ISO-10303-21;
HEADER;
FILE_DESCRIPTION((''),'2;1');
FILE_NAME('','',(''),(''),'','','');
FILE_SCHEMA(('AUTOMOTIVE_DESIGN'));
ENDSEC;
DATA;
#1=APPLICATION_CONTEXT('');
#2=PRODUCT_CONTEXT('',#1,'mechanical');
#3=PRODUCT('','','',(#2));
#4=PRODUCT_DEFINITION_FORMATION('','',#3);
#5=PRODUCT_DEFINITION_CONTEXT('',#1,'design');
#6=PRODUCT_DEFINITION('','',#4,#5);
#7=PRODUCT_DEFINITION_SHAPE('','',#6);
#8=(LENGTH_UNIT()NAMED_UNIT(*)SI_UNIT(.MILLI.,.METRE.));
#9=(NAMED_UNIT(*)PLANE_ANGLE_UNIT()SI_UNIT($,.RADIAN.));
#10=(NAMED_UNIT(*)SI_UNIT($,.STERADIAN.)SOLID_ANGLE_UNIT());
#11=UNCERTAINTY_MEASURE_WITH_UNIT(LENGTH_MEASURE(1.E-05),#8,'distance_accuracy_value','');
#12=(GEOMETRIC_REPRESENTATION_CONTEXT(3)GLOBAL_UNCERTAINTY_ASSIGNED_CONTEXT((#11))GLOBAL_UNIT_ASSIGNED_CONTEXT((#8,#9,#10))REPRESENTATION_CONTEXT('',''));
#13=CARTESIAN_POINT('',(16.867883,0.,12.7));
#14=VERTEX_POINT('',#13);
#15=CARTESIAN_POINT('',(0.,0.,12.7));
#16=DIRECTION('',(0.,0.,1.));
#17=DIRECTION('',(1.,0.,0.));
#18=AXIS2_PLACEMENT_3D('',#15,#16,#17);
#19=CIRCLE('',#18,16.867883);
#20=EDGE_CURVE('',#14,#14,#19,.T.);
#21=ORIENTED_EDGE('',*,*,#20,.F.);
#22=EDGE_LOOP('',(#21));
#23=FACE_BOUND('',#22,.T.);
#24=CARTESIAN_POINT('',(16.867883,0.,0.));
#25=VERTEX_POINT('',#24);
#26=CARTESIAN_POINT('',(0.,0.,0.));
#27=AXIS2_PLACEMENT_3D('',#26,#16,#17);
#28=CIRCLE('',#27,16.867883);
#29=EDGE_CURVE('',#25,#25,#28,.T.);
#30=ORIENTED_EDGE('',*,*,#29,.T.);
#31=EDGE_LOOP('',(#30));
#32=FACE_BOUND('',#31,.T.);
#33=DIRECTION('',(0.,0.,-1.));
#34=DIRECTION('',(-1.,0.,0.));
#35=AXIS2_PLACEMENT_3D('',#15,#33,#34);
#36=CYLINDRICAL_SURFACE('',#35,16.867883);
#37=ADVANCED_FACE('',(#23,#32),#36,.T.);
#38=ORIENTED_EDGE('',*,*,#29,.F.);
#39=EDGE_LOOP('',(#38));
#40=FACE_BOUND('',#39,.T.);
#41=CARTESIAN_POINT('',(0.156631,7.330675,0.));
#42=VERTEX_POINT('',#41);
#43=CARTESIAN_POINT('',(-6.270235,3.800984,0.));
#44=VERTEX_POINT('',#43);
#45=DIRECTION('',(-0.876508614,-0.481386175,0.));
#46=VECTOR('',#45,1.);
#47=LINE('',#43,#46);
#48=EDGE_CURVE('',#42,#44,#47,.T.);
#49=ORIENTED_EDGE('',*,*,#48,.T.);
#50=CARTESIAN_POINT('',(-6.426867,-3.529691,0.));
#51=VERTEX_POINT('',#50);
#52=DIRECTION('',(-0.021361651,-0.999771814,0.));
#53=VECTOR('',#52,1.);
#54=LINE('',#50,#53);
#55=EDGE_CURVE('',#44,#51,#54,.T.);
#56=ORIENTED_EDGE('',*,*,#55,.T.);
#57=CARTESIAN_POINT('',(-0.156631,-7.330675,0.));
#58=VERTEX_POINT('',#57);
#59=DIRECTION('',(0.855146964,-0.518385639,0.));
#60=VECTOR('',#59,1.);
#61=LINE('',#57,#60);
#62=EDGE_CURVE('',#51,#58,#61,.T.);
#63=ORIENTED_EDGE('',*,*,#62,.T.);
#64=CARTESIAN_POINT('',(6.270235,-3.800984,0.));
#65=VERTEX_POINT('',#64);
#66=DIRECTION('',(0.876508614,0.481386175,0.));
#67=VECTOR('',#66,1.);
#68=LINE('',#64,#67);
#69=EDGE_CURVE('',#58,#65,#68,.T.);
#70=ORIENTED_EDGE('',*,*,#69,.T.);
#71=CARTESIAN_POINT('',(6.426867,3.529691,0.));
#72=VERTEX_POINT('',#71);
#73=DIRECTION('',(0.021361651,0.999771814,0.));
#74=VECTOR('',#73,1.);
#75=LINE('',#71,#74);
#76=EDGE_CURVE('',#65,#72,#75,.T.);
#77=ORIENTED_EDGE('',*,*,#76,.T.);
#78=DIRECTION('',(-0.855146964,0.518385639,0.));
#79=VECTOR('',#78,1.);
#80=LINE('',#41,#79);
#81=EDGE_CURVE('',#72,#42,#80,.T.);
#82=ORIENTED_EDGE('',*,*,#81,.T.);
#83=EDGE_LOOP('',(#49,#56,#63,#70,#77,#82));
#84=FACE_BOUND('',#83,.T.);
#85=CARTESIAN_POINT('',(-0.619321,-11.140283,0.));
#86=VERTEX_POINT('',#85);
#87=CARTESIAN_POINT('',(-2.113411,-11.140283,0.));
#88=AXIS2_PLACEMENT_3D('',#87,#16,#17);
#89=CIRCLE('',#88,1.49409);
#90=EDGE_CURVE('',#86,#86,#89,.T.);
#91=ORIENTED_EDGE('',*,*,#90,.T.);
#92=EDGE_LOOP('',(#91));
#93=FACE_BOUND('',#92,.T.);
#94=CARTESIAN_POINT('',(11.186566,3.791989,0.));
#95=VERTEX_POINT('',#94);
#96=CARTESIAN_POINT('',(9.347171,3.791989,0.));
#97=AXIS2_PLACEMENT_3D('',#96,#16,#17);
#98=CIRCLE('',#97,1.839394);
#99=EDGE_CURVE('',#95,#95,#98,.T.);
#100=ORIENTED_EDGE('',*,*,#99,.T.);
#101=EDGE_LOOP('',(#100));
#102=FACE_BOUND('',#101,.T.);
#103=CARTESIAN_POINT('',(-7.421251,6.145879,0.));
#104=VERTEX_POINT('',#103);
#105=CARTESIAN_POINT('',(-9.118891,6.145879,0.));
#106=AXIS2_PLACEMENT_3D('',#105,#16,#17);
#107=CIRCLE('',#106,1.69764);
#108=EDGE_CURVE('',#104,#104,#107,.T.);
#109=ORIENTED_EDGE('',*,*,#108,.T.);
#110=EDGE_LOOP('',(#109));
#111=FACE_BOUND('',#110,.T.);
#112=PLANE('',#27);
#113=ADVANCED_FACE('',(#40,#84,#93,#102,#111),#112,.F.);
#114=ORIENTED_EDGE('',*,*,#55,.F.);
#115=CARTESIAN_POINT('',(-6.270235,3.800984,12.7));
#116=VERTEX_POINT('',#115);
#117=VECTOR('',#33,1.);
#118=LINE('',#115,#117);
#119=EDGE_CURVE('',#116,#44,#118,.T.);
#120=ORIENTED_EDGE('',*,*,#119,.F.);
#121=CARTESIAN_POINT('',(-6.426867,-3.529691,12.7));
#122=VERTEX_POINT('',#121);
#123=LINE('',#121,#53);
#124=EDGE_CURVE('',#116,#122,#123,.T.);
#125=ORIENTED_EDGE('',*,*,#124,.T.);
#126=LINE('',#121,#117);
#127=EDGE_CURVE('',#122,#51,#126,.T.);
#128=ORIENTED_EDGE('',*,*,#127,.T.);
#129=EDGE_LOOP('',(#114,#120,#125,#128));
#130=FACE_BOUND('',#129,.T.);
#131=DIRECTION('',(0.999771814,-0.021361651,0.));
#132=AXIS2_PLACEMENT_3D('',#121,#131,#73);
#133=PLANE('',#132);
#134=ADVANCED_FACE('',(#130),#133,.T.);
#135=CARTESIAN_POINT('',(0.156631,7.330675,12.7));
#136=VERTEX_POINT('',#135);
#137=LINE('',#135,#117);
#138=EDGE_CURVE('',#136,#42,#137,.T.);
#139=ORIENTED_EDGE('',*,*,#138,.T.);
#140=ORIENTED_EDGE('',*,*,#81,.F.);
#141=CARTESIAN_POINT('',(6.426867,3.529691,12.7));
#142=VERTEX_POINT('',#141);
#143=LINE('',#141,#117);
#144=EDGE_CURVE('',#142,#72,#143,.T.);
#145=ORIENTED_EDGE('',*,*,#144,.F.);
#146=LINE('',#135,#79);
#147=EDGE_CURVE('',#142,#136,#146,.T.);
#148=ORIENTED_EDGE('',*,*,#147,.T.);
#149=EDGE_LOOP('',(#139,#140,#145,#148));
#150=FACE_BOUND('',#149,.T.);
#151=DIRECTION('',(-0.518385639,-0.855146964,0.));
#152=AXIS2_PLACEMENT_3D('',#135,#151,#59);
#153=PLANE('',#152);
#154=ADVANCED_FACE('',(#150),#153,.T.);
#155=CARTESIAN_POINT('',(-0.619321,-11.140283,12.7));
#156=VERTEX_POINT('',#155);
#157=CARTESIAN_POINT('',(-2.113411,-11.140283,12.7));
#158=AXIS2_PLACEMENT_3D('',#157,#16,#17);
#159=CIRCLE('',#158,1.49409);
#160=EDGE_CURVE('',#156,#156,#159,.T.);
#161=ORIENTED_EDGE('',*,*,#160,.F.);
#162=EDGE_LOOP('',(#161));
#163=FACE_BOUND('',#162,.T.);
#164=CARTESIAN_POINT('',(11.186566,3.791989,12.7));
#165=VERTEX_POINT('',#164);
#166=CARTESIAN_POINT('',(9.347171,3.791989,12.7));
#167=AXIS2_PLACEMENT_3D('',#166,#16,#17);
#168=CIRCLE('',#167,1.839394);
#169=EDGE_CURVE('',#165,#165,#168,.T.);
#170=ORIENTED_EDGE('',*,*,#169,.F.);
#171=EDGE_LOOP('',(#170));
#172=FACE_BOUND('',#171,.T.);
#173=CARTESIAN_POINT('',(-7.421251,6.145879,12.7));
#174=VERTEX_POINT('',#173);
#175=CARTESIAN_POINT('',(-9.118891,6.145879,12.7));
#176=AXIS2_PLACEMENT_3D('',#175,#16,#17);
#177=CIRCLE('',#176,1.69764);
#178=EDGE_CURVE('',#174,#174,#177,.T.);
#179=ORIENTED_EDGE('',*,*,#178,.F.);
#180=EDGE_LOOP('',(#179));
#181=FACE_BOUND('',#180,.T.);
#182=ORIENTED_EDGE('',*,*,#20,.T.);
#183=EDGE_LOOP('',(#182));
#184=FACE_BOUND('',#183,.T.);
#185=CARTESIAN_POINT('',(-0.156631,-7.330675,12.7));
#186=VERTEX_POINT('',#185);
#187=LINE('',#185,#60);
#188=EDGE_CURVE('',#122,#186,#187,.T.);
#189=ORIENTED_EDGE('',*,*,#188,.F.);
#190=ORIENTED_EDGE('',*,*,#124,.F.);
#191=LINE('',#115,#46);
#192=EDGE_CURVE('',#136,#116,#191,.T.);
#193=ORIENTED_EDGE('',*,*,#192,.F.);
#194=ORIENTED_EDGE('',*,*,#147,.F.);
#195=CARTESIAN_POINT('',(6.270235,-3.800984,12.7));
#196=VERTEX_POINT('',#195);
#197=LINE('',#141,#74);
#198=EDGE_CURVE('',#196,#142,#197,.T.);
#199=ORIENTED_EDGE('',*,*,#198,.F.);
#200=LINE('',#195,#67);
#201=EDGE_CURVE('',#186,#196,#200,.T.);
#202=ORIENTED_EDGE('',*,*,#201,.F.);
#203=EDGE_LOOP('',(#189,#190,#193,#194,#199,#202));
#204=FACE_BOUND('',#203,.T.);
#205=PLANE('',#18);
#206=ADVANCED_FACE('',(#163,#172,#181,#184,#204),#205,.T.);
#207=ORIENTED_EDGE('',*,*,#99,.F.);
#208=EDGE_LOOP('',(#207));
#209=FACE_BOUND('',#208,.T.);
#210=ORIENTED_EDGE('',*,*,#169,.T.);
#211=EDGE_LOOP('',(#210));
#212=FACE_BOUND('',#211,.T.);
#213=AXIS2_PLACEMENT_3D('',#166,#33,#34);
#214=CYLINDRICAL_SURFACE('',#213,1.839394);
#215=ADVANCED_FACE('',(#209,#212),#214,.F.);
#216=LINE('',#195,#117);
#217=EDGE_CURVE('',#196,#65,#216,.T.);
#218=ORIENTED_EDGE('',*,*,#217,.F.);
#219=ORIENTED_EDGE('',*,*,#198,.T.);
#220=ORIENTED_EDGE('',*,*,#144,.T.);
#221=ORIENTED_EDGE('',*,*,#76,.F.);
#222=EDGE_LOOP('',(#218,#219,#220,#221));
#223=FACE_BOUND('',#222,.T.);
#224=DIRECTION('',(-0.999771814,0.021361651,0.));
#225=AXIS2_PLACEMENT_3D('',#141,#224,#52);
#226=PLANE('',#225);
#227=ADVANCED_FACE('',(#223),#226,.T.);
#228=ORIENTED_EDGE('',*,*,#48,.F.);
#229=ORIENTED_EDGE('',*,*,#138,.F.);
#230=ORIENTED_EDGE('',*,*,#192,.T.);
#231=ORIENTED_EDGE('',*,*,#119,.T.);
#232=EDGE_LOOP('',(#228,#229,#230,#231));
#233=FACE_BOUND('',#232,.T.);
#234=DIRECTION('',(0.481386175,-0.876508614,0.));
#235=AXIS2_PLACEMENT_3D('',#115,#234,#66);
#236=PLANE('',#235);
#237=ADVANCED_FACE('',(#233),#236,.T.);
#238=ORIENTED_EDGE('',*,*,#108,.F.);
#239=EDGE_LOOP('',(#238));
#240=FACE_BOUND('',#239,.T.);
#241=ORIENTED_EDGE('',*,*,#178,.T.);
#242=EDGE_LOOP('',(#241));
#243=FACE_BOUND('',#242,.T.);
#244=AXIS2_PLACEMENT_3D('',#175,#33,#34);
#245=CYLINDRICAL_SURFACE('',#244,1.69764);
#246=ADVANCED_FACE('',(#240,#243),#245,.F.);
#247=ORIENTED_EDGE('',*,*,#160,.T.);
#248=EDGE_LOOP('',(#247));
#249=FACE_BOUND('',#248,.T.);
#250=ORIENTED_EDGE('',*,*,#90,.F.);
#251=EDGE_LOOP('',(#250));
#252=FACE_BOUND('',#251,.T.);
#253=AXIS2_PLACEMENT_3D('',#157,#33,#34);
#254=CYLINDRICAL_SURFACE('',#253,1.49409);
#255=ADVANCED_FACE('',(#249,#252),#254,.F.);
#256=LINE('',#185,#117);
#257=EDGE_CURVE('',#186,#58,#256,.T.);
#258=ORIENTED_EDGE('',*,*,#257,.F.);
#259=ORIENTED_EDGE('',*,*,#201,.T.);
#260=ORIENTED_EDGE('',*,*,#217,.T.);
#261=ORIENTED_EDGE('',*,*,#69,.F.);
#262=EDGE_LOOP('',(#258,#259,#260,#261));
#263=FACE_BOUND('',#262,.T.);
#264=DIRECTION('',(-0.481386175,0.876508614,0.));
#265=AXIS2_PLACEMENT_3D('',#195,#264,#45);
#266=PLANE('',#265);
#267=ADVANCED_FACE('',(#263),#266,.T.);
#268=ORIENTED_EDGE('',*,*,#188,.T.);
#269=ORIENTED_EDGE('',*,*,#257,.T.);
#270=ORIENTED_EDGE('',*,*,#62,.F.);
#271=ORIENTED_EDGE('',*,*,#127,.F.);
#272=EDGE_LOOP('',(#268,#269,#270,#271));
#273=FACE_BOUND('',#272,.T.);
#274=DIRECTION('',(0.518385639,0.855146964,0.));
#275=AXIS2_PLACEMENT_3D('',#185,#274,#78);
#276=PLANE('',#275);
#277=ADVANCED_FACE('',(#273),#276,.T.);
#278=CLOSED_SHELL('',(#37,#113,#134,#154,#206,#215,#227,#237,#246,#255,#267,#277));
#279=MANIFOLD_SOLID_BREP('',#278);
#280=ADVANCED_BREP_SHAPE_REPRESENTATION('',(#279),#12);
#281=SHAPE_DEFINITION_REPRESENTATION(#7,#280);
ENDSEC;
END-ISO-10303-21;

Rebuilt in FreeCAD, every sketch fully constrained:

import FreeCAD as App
import Part
import Sketcher
Q = App.Units.Quantity

doc = App.newDocument("Part")
body = doc.addObject("PartDesign::Body", "Body")

sketch1 = doc.addObject("Sketcher::SketchObject", "Sketch")
body.addObject(sketch1)
sketch1.AttachmentSupport = (doc.XY_Plane, [""])
sketch1.MapMode = "FlatFace"
sketch1.addGeometry([
    Part.Circle(App.Vector(0, 0, 0), App.Vector(0, 0, 1), 16.867883),
    Part.Circle(App.Vector(-2.113411, -11.140283, 0), App.Vector(0, 0, 1), 1.49409),
    Part.LineSegment(App.Vector(-6.426867, -3.529691, 0), App.Vector(-6.270235, 3.800984, 0)),
    Part.LineSegment(App.Vector(-6.270235, 3.800984, 0), App.Vector(0.156631, 7.330675, 0)),
    Part.LineSegment(App.Vector(0.156631, 7.330675, 0), App.Vector(6.426867, 3.529691, 0)),
    Part.LineSegment(App.Vector(6.426867, 3.529691, 0), App.Vector(6.270235, -3.800984, 0)),
    Part.LineSegment(App.Vector(6.270235, -3.800984, 0), App.Vector(-0.156631, -7.330675, 0)),
    Part.LineSegment(App.Vector(-0.156631, -7.330675, 0), App.Vector(-6.426867, -3.529691, 0)),
    Part.Circle(App.Vector(-9.118891, 6.145879, 0), App.Vector(0, 0, 1), 1.69764),
    Part.Circle(App.Vector(9.347171, 3.791989, 0), App.Vector(0, 0, 1), 1.839394),
], False)
sketch1.addConstraint([
    Sketcher.Constraint("Coincident", 2, 2, 3, 1),
    Sketcher.Constraint("Coincident", 3, 2, 4, 1),
    Sketcher.Constraint("Coincident", 4, 2, 5, 1),
    Sketcher.Constraint("Coincident", 5, 2, 6, 1),
    Sketcher.Constraint("Coincident", 6, 2, 7, 1),
    Sketcher.Constraint("Coincident", 7, 2, 2, 1),
    Sketcher.Constraint("Coincident", 0, 3, -1, 1),
    Sketcher.Constraint("Symmetric", 2, 2, 5, 2, -1, 1),
    Sketcher.Constraint("Symmetric", 3, 2, 6, 2, -1, 1),
    Sketcher.Constraint("Symmetric", 4, 2, 7, 2, -1, 1),
    Sketcher.Constraint("Equal", 2, 3),
    Sketcher.Constraint("Equal", 3, 4),
    Sketcher.Constraint("Diameter", 1, 2.98818),
    Sketcher.Constraint("Diameter", 8, 3.395281),
    Sketcher.Constraint("Diameter", 9, 3.678789),
    Sketcher.Constraint("Diameter", 0, 33.735766),
    Sketcher.Constraint("DistanceY", 1, 3, 5, 2, 7.339299),
    Sketcher.Constraint("Distance", 2, 7.332348),
    Sketcher.Constraint("DistanceX", 1, 3, -1, 1, 2.113411),
    Sketcher.Constraint("DistanceX", 8, 3, -1, 1, 9.118891),
    Sketcher.Constraint("DistanceY", -1, 1, 8, 3, 6.145879),
    Sketcher.Constraint("DistanceX", -1, 1, 9, 3, 9.347171),
    Sketcher.Constraint("DistanceY", -1, 1, 9, 3, 3.791989),
    Sketcher.Constraint("DistanceX", -1, 1, 3, 2, 0.156631),
    Sketcher.Constraint("DistanceY", -1, 1, 4, 2, 3.529691),
    Sketcher.Constraint("DistanceY", 2, 2, 3, 2, 3.529691),
])
pad1 = doc.addObject("PartDesign::Pad", "Pad")
body.addObject(pad1)
pad1.Profile = sketch1
pad1.Length = Q("0.5 in")

doc.recompute()
